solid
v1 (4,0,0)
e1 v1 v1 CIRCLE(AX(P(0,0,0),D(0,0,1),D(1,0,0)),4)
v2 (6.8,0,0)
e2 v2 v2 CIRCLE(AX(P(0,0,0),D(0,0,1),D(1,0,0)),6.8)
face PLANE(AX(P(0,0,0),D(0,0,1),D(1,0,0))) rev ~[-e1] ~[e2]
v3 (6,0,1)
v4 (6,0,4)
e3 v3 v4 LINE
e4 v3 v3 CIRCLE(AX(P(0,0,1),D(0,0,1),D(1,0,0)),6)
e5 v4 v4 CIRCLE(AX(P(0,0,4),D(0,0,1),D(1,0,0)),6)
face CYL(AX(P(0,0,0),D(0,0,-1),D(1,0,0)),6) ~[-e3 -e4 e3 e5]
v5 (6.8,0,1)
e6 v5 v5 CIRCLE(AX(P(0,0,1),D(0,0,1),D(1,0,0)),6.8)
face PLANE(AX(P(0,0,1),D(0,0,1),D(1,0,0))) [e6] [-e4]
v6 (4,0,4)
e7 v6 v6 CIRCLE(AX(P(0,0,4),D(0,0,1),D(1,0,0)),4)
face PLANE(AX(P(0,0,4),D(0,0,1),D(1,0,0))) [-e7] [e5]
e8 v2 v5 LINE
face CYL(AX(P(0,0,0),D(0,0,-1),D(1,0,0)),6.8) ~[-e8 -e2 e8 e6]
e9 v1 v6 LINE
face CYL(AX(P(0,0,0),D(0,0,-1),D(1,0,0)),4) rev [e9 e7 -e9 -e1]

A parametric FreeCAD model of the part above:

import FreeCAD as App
import Part
import Sketcher

doc = App.newDocument("Part")
body = doc.addObject("PartDesign::Body", "Body")

sketch1 = body.newObject("Sketcher::SketchObject", "Sketch")
sketch1.AttachmentSupport = (doc.getObject("XY_Plane"), [""])
sketch1.MapMode = "FlatFace"
sketch1.addGeometry([
    Part.Circle(App.Vector(0, 0, 0), App.Vector(0, 0, 1), 6),
    Part.Circle(App.Vector(0, 0, 0), App.Vector(0, 0, 1), 4),
], False)
sketch1.addConstraint([
    Sketcher.Constraint("Coincident", 0, 3, -1, 1),
    Sketcher.Constraint("Coincident", 1, 3, -1, 1),
    Sketcher.Constraint("Diameter", 0, 12.0),
    Sketcher.Constraint("Diameter", 1, 8.0),
])
pad1 = body.newObject("PartDesign::Pad", "Pad")
pad1.Profile = sketch1
pad1.Length = 4

sketch2 = body.newObject("Sketcher::SketchObject", "Sketch001")
sketch2.AttachmentSupport = (doc.getObject("XY_Plane"), [""])
sketch2.MapMode = "FlatFace"
sketch2.addGeometry([
    Part.Circle(App.Vector(0, 0, 0), App.Vector(0, 0, 1), 7),
    Part.Circle(App.Vector(0, 0, 0), App.Vector(0, 0, 1), 6),
], False)
sketch2.addConstraint([
    Sketcher.Constraint("Coincident", 0, 3, -1, 1),
    Sketcher.Constraint("Coincident", 1, 3, -1, 1),
    Sketcher.Constraint("Diameter", 1, 12.0),
    Sketcher.Constraint("Diameter", 0, 13.6),
])
pad2 = body.newObject("PartDesign::Pad", "Pad001")
pad2.Profile = sketch2
pad2.Length = 1

doc.recompute()
